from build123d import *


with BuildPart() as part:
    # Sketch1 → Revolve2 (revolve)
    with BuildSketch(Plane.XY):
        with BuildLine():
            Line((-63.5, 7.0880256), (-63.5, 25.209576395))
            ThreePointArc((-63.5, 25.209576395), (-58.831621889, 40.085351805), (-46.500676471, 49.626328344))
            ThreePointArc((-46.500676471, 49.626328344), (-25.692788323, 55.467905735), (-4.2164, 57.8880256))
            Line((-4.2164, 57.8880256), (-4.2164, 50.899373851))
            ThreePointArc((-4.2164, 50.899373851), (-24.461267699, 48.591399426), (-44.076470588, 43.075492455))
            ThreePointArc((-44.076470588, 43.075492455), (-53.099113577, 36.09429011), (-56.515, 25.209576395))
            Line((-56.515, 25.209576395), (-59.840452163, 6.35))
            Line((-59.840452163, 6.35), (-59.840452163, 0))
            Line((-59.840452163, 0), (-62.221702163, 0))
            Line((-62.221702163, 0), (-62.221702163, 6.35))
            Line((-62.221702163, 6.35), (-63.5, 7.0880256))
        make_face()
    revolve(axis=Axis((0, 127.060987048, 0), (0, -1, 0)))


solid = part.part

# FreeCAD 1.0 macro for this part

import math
import FreeCAD as App
import Part
import Sketcher
Q = App.Units.Quantity

doc = App.newDocument("Part")
params = doc.addObject("Spreadsheet::Sheet", "Params")
for row, (alias, value) in enumerate([
    ("sketch1_radius", "5 in"),
    ("sketch1_radius2", "0.75 in"),
    ("sketch1_radius3", "5.275 in"),
    ("sketch1_height", "0.25 in"),
    ("sketch1_width", "0.09375 in"),
    ("revolution_angle", "360 deg"),
], start=1):
    params.set(f"A{row}", alias)
    params.set(f"B{row}", "=" + value)
    params.setAlias(f"B{row}", alias)

body = doc.addObject("PartDesign::Body", "Body")

# Sketch on XY plane
sketch1 = body.newObject("Sketcher::SketchObject", "Sketch")
sketch1.AttachmentSupport = (doc.getObject("XY_Plane"), [""])
sketch1.MapMode = "FlatFace"
sketch1.addGeometry([
    Part.LineSegment(App.Vector(-63.5, 25.2, 0), App.Vector(-63.5, 7.1, 0)),  # 0
    Part.LineSegment(App.Vector(-63.5, 7.1, 0), App.Vector(-62.2, 6.3, 0)),  # 1
    Part.LineSegment(App.Vector(-62.2, 6.3, 0), App.Vector(-62.2, 0, 0)),  # 2
    Part.LineSegment(App.Vector(-62.2, 0, 0), App.Vector(-59.8, 0, 0)),  # 3
    Part.LineSegment(App.Vector(-59.8, 0, 0), App.Vector(-59.8, 6.3, 0)),  # 4
    Part.LineSegment(App.Vector(-59.8, 6.3, 0), App.Vector(-56.5, 25.2, 0)),  # 5
    Part.ArcOfCircle(Part.Circle(App.Vector(-37.5, 25.2, 0), App.Vector(0, 0, 1), 19.1), math.radians(110), math.radians(180)),  # 6
    Part.ArcOfCircle(Part.Circle(App.Vector(0, -76, 0), App.Vector(0, 0, 1), 127), math.radians(91.9), math.radians(110.31)),  # 7
    Part.LineSegment(App.Vector(-4.2, 50.9, 0), App.Vector(-4.2, 57.9, 0)),  # 8
    Part.ArcOfCircle(Part.Circle(App.Vector(0, -76, 0), App.Vector(0, 0, 1), 134), math.radians(91.8), math.radians(110.31)),  # 9
    Part.ArcOfCircle(Part.Circle(App.Vector(-37.5, 25.2, 0), App.Vector(0, 0, 1), 26), math.radians(110), math.radians(180)),  # 10
], False)
sketch1.addConstraint([
    Sketcher.Constraint("Coincident", 0, 2, 1, 1),
    Sketcher.Constraint("Coincident", 1, 2, 2, 1),
    Sketcher.Constraint("Coincident", 2, 2, 3, 1),
    Sketcher.Constraint("Coincident", 3, 2, 4, 1),
    Sketcher.Constraint("Coincident", 4, 2, 5, 1),
    Sketcher.Constraint("Coincident", 5, 2, 6, 2),
    Sketcher.Constraint("Tangent", 6, 1, 7, 2),
    Sketcher.Constraint("Coincident", 7, 1, 8, 1),
    Sketcher.Constraint("Coincident", 8, 2, 9, 1),
    Sketcher.Constraint("Tangent", 9, 2, 10, 1),
    Sketcher.Constraint("Tangent", 10, 2, 0, 1),
    Sketcher.Constraint("Vertical", 0),
    Sketcher.Constraint("Vertical", 2),
    Sketcher.Constraint("Horizontal", 3),
    Sketcher.Constraint("Vertical", 4),
    Sketcher.Constraint("Vertical", 8),
    Sketcher.Constraint("Coincident", 9, 3, 7, 3),
    Sketcher.Constraint("Coincident", 10, 3, 6, 3),
    Sketcher.Constraint("PointOnObject", 7, 3, -2),
    Sketcher.Constraint("PointOnObject", 2, 2, -1),
    Sketcher.Constraint("Horizontal", 1, 2, 4, 2),
    Sketcher.Constraint("Horizontal", 10, 3, 5, 2),
    Sketcher.Constraint("Radius", 7, Q("5 in")),
    Sketcher.Constraint("Radius", 6, Q("0.75 in")),
    Sketcher.Constraint("Angle", 1, Q("-30 deg")),
    Sketcher.Constraint("Angle", 5, Q("80 deg")),
    Sketcher.Constraint("Radius", 9, Q("5.275 in")),
    Sketcher.Constraint("DistanceY", 2, 2, 2, 1, Q("0.25 in")),
    Sketcher.Constraint("DistanceX", 0, 2, -1, 1, Q("2.5 in")),
    Sketcher.Constraint("DistanceX", 3, 1, 3, 2, Q("0.09375 in")),
    Sketcher.Constraint("DistanceX", 7, 1, -1, 1, Q("0.166 in")),
    Sketcher.Constraint("DistanceY", 0, 2, 0, 1, 18.121551),
])
sketch1.setExpression("Constraints[22]", "Params.sketch1_radius")
sketch1.setExpression("Constraints[23]", "Params.sketch1_radius2")
sketch1.setExpression("Constraints[26]", "Params.sketch1_radius3")
sketch1.setExpression("Constraints[27]", "Params.sketch1_height")
sketch1.setExpression("Constraints[29]", "Params.sketch1_width")
revolution = body.newObject("PartDesign::Revolution", "Revolution")
revolution.Profile = sketch1
revolution.ReferenceAxis = (sketch1, ["V_Axis"])
revolution.setExpression("Angle", "Params.revolution_angle")

doc.recompute()
